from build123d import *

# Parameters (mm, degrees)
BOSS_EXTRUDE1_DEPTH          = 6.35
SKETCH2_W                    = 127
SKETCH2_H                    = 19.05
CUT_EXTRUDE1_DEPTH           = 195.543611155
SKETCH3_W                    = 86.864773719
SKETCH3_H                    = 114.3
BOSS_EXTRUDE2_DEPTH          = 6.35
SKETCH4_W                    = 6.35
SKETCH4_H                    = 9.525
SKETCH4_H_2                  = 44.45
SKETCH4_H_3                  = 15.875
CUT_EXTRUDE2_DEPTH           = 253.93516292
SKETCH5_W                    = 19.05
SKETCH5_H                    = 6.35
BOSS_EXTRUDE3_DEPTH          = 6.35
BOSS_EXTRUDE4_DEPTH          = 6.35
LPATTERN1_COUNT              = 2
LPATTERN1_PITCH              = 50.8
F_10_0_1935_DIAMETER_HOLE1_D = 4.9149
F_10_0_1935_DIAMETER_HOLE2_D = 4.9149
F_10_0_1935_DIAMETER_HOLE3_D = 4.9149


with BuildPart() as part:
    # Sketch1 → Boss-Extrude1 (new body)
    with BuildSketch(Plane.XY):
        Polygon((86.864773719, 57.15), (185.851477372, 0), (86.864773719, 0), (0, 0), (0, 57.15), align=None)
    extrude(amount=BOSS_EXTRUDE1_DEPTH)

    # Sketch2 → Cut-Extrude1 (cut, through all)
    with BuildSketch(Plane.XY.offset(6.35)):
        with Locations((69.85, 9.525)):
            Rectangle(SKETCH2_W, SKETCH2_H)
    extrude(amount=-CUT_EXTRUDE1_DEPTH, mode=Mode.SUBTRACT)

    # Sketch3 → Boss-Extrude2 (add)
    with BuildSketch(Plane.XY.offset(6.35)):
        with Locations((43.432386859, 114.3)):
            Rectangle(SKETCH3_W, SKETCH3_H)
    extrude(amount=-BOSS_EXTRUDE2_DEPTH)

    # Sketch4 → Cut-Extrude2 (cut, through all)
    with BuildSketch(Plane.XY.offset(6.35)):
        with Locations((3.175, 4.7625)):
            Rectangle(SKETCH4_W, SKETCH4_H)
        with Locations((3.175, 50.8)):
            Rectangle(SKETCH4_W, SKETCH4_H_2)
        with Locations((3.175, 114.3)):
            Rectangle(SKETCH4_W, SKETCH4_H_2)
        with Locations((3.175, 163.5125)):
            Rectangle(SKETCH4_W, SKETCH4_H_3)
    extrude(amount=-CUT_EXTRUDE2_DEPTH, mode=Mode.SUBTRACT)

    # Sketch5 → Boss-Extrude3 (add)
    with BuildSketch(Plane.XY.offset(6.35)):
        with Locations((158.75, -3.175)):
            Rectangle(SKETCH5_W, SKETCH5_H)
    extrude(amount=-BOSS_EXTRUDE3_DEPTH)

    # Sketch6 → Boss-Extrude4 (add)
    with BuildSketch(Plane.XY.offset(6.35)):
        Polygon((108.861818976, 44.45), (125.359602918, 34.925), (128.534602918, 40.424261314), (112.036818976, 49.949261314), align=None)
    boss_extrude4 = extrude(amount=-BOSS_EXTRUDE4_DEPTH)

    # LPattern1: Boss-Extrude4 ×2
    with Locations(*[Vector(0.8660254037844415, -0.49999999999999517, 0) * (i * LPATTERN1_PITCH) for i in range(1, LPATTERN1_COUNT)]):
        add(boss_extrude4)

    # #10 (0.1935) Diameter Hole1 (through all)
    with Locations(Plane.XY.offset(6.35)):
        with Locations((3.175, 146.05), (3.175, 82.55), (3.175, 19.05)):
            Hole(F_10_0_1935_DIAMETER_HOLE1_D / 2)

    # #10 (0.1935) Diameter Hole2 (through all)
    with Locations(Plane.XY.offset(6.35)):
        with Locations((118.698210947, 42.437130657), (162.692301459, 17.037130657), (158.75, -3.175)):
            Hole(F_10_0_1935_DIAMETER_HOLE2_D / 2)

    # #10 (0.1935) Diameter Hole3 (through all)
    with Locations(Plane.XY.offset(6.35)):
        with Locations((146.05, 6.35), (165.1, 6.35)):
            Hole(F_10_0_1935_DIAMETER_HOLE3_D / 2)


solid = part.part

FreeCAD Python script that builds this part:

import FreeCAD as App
import Part
import Sketcher
Q = App.Units.Quantity


def add_polygon(sketch, points):
    """Adds a closed chain of lines whose ends are joined by coincident constraints."""
    first, n = sketch.GeometryCount, len(points)
    for a, b in zip(points, points[1:] + points[:1]):
        sketch.addGeometry(Part.LineSegment(App.Vector(*a, 0), App.Vector(*b, 0)), False)
    for i in range(n):
        sketch.addConstraint(Sketcher.Constraint("Coincident", first + i, 2, first + (i + 1) % n, 1))

doc = App.newDocument("Part")
body = doc.addObject("PartDesign::Body", "Body")

# Sketch on XY plane
sketch1 = doc.addObject("Sketcher::SketchObject", "Sketch")
body.addObject(sketch1)
sketch1.AttachmentSupport = (doc.XY_Plane, [""])
sketch1.MapMode = "FlatFace"
add_polygon(sketch1, [(186, 0), (87, 57), (0, 57), (0, 0)])  # lines 0-3
sketch1.addConstraint(Sketcher.Constraint("Horizontal", 1))
sketch1.addConstraint(Sketcher.Constraint("Vertical", 2))
sketch1.addConstraint(Sketcher.Constraint("Horizontal", 3))
sketch1.addConstraint(Sketcher.Constraint("Coincident", 2, 2, -1, 1))
sketch1.addConstraint(Sketcher.Constraint("Angle", 0, Q("150 deg")))
sketch1.addConstraint(Sketcher.Constraint("Distance", 0, Q("4.5 in")))
sketch1.addConstraint(Sketcher.Constraint("DistanceX", 1, 2, 1, 1, Q("86.864774 mm")))
pad1 = doc.addObject("PartDesign::Pad", "Pad")
body.addObject(pad1)
pad1.Profile = sketch1
pad1.Length = Q("0.25 in")

# Sketch on XY plane
sketch2 = doc.addObject("Sketcher::SketchObject", "Sketch001")
body.addObject(sketch2)
sketch2.AttachmentSupport = (doc.XY_Plane, [""])
sketch2.MapMode = "FlatFace"
sketch2.AttachmentOffset = App.Placement(App.Vector(0, 0, 0.25 * 25.4), App.Rotation())
add_polygon(sketch2, [(6, 19), (6, 0), (133, 0), (133, 19)])  # lines 0-3
sketch2.addConstraint(Sketcher.Constraint("Vertical", 0))
sketch2.addConstraint(Sketcher.Constraint("Horizontal", 1))
sketch2.addConstraint(Sketcher.Constraint("Vertical", 2))
sketch2.addConstraint(Sketcher.Constraint("Horizontal", 3))
sketch2.addConstraint(Sketcher.Constraint("PointOnObject", 0, 2, -1))
sketch2.addConstraint(Sketcher.Constraint("DistanceX", 1, 1, 1, 2, Q("5 in")))
sketch2.addConstraint(Sketcher.Constraint("DistanceY", 0, 2, 0, 1, Q("0.75 in")))
sketch2.addConstraint(Sketcher.Constraint("DistanceX", -1, 1, 0, 2, Q("0.25 in")))
pocket1 = doc.addObject("PartDesign::Pocket", "Pocket")
body.addObject(pocket1)
pocket1.Profile = sketch2
pocket1.Type = "ThroughAll"

# Sketch on XY plane
sketch3 = doc.addObject("Sketcher::SketchObject", "Sketch002")
body.addObject(sketch3)
sketch3.AttachmentSupport = (doc.XY_Plane, [""])
sketch3.MapMode = "FlatFace"
sketch3.AttachmentOffset = App.Placement(App.Vector(0, 0, 0.25 * 25.4), App.Rotation())
add_polygon(sketch3, [(0, 171), (0, 57), (87, 57), (87, 171)])  # lines 0-3
sketch3.addConstraint(Sketcher.Constraint("Vertical", 0))
sketch3.addConstraint(Sketcher.Constraint("Horizontal", 1))
sketch3.addConstraint(Sketcher.Constraint("Vertical", 2))
sketch3.addConstraint(Sketcher.Constraint("Horizontal", 3))
sketch3.addConstraint(Sketcher.Constraint("PointOnObject", 0, 2, -2))
sketch3.addConstraint(Sketcher.Constraint("DistanceY", 0, 2, 0, 1, Q("4.5 in")))
sketch3.addConstraint(Sketcher.Constraint("DistanceY", -1, 1, 0, 2, Q("2.25 in")))
sketch3.addConstraint(Sketcher.Constraint("DistanceX", 1, 1, 1, 2, Q("86.864774 mm")))
pad2 = doc.addObject("PartDesign::Pad", "Pad001")
body.addObject(pad2)
pad2.Profile = sketch3
pad2.Length = Q("0.25 in")
pad2.Reversed = True

# Sketch on XY plane
sketch4 = doc.addObject("Sketcher::SketchObject", "Sketch003")
body.addObject(sketch4)
sketch4.AttachmentSupport = (doc.XY_Plane, [""])
sketch4.MapMode = "FlatFace"
sketch4.AttachmentOffset = App.Placement(App.Vector(0, 0, 0.25 * 25.4), App.Rotation())
add_polygon(sketch4, [(0, 10), (0, 0), (6, 0), (6, 10)])  # lines 0-3
add_polygon(sketch4, [(0, 73), (0, 29), (6, 29), (6, 73)])  # lines 4-7
add_polygon(sketch4, [(0, 137), (0, 92), (6, 92), (6, 137)])  # lines 8-11
add_polygon(sketch4, [(0, 171), (0, 156), (6, 156), (6, 171)])  # lines 12-15
sketch4.addConstraint(Sketcher.Constraint("Vertical", 0))
sketch4.addConstraint(Sketcher.Constraint("Horizontal", 1))
sketch4.addConstraint(Sketcher.Constraint("Vertical", 2))
sketch4.addConstraint(Sketcher.Constraint("Horizontal", 3))
sketch4.addConstraint(Sketcher.Constraint("Vertical", 4))
sketch4.addConstraint(Sketcher.Constraint("Horizontal", 5))
sketch4.addConstraint(Sketcher.Constraint("Vertical", 6))
sketch4.addConstraint(Sketcher.Constraint("Horizontal", 7))
sketch4.addConstraint(Sketcher.Constraint("Vertical", 8))
sketch4.addConstraint(Sketcher.Constraint("Horizontal", 9))
sketch4.addConstraint(Sketcher.Constraint("Vertical", 10))
sketch4.addConstraint(Sketcher.Constraint("Horizontal", 11))
sketch4.addConstraint(Sketcher.Constraint("Vertical", 12))
sketch4.addConstraint(Sketcher.Constraint("Horizontal", 13))
sketch4.addConstraint(Sketcher.Constraint("Vertical", 14))
sketch4.addConstraint(Sketcher.Constraint("Horizontal", 15))
sketch4.addConstraint(Sketcher.Constraint("Coincident", 0, 2, -1, 1))
sketch4.addConstraint(Sketcher.Constraint("PointOnObject", 4, 2, -2))
sketch4.addConstraint(Sketcher.Constraint("PointOnObject", 8, 2, -2))
sketch4.addConstraint(Sketcher.Constraint("PointOnObject", 12, 2, -2))
sketch4.addConstraint(Sketcher.Constraint("Vertical", 2, 2, 5, 2))
sketch4.addConstraint(Sketcher.Constraint("Vertical", 6, 2, 9, 2))
sketch4.addConstraint(Sketcher.Constraint("Vertical", 10, 2, 13, 2))
sketch4.addConstraint(Sketcher.Constraint("Equal", 6, 8))
sketch4.addConstraint(Sketcher.Constraint("DistanceX", 1, 1, 1, 2, Q("0.25 in")))
sketch4.addConstraint(Sketcher.Constraint("DistanceY", 4, 2, 4, 1, Q("1.75 in")))
sketch4.addConstraint(Sketcher.Constraint("DistanceY", 2, 2, 6, 2, Q("2.5 in")))
sketch4.addConstraint(Sketcher.Constraint("DistanceY", 4, 2, 8, 2, Q("2.5 in")))
sketch4.addConstraint(Sketcher.Constraint("DistanceY", 8, 2, 12, 2, Q("2.5 in")))
sketch4.addConstraint(Sketcher.Constraint("DistanceY", 0, 2, 0, 1, Q("0.375 in")))
sketch4.addConstraint(Sketcher.Constraint("DistanceY", 12, 2, 12, 1, Q("0.625 in")))
pocket2 = doc.addObject("PartDesign::Pocket", "Pocket001")
body.addObject(pocket2)
pocket2.Profile = sketch4
pocket2.Type = "ThroughAll"

# Sketch on XY plane
sketch5 = doc.addObject("Sketcher::SketchObject", "Sketch004")
body.addObject(sketch5)
sketch5.AttachmentSupport = (doc.XY_Plane, [""])
sketch5.MapMode = "FlatFace"
sketch5.AttachmentOffset = App.Placement(App.Vector(0, 0, 0.25 * 25.4), App.Rotation())
add_polygon(sketch5, [(149, 0), (149, -6), (168, -6), (168, 0)])  # lines 0-3
sketch5.addConstraint(Sketcher.Constraint("Vertical", 0))
sketch5.addConstraint(Sketcher.Constraint("Horizontal", 1))
sketch5.addConstraint(Sketcher.Constraint("Vertical", 2))
sketch5.addConstraint(Sketcher.Constraint("Horizontal", 3))
sketch5.addConstraint(Sketcher.Constraint("PointOnObject", 2, 2, -1))
sketch5.addConstraint(Sketcher.Constraint("DistanceX", 1, 1, 1, 2, Q("0.75 in")))
sketch5.addConstraint(Sketcher.Constraint("DistanceY", 0, 2, 0, 1, Q("0.25 in")))
sketch5.addConstraint(Sketcher.Constraint("DistanceX", -1, 1, 0, 2, Q("5.875 in")))
pad3 = doc.addObject("PartDesign::Pad", "Pad002")
body.addObject(pad3)
pad3.Profile = sketch5
pad3.Length = Q("0.25 in")
pad3.Reversed = True

# Sketch on XY plane
sketch6 = doc.addObject("Sketcher::SketchObject", "Sketch005")
body.addObject(sketch6)
sketch6.AttachmentSupport = (doc.XY_Plane, [""])
sketch6.MapMode = "FlatFace"
sketch6.AttachmentOffset = App.Placement(App.Vector(0, 0, 0.25 * 25.4), App.Rotation())
add_polygon(sketch6, [(109, 44), (125, 35), (129, 40), (112, 50)])  # lines 0-3
sketch6.addConstraint(Sketcher.Constraint("Perpendicular", 0, 1))
sketch6.addConstraint(Sketcher.Constraint("Perpendicular", 1, 2))
sketch6.addConstraint(Sketcher.Constraint("Perpendicular", 2, 3))
sketch6.addConstraint(Sketcher.Constraint("Angle", 0, Q("-30 deg")))
sketch6.addConstraint(Sketcher.Constraint("Distance", 0, Q("0.75 in")))
sketch6.addConstraint(Sketcher.Constraint("Distance", 1, Q("0.25 in")))
sketch6.addConstraint(Sketcher.Constraint("DistanceY", -1, 1, 3, 2, Q("1.75 in")))
sketch6.addConstraint(Sketcher.Constraint("DistanceX", -1, 1, 2, 2, Q("112.036819 mm")))
pad4 = doc.addObject("PartDesign::Pad", "Pad003")
body.addObject(pad4)
pad4.Profile = sketch6
pad4.Length = Q("0.25 in")
pad4.Reversed = True
doc.recompute()

datumline = doc.addObject("PartDesign::Line", "DatumLine")
body.addObject(datumline)
datumline.Placement = App.Placement(App.Vector(0, 0, 0), App.Rotation(App.Vector(0, 0, 1), App.Vector(0.866025404, -0.5, 0)))
linearpattern = doc.addObject("PartDesign::LinearPattern", "LinearPattern")
body.addObject(linearpattern)
linearpattern.Originals = [pad4]
linearpattern.Direction = (datumline, [""])
linearpattern.Mode = "offset"
linearpattern.Offset = Q("2 in")
linearpattern.Occurrences = 2
body.Tip = linearpattern

# Sketch on XY plane
sketch7 = doc.addObject("Sketcher::SketchObject", "Sketch006")
body.addObject(sketch7)
sketch7.AttachmentSupport = (doc.XY_Plane, [""])
sketch7.MapMode = "FlatFace"
sketch7.AttachmentOffset = App.Placement(App.Vector(0, 0, 0.25 * 25.4), App.Rotation())
sketch7.addGeometry(Part.Circle(App.Vector(3.2, 146.1, 0), App.Vector(0, 0, 1), 2.5), False)
sketch7.addGeometry(Part.Circle(App.Vector(3.2, 82.5, 0), App.Vector(0, 0, 1), 2.5), False)
sketch7.addGeometry(Part.Circle(App.Vector(3.2, 19.1, 0), App.Vector(0, 0, 1), 2.5), False)
sketch7.addConstraint(Sketcher.Constraint("Equal", 0, 1))
sketch7.addConstraint(Sketcher.Constraint("Equal", 1, 2))
sketch7.addConstraint(Sketcher.Constraint("Vertical", 0, 3, 1, 3))
sketch7.addConstraint(Sketcher.Constraint("Vertical", 1, 3, 2, 3))
sketch7.addConstraint(Sketcher.Constraint("DistanceY", 2, 3, 0, 3, Q("5 in")))
sketch7.addConstraint(Sketcher.Constraint("Diameter", 0, Q("0.1935 in")))
sketch7.addConstraint(Sketcher.Constraint("DistanceY", 1, 3, 0, 3, Q("2.5 in")))
sketch7.addConstraint(Sketcher.Constraint("DistanceY", -1, 1, 0, 3, Q("5.75 in")))
sketch7.addConstraint(Sketcher.Constraint("DistanceX", -1, 1, 0, 3, Q("0.125 in")))
doc.recompute()
hole = doc.addObject("PartDesign::Hole", "Hole")
body.addObject(hole)
hole.Profile = sketch7
hole.ThreadType = "None"
hole.Diameter = Q("0.1935 in")
hole.DepthType = "ThroughAll"

# Sketch on XY plane
sketch8 = doc.addObject("Sketcher::SketchObject", "Sketch007")
body.addObject(sketch8)
sketch8.AttachmentSupport = (doc.XY_Plane, [""])
sketch8.MapMode = "FlatFace"
sketch8.AttachmentOffset = App.Placement(App.Vector(0, 0, 0.25 * 25.4), App.Rotation())
sketch8.addGeometry(Part.Circle(App.Vector(118.7, 42.4, 0), App.Vector(0, 0, 1), 2.5), False)
sketch8.addGeometry(Part.Circle(App.Vector(162.7, 17, 0), App.Vector(0, 0, 1), 2.5), False)
sketch8.addGeometry(Part.Circle(App.Vector(158.8, -3.2, 0), App.Vector(0, 0, 1), 2.5), False)
sketch8.addConstraint(Sketcher.Constraint("Equal", 0, 1))
sketch8.addConstraint(Sketcher.Constraint("Equal", 1, 2))
sketch8.addConstraint(Sketcher.Constraint("DistanceY", 1, 3, 0, 3, Q("1 in")))
sketch8.addConstraint(Sketcher.Constraint("Diameter", 0, Q("0.1935 in")))
sketch8.addConstraint(Sketcher.Constraint("DistanceX", -1, 1, 2, 3, Q("6.25 in")))
sketch8.addConstraint(Sketcher.Constraint("DistanceY", 2, 3, -1, 1, Q("0.125 in")))
sketch8.addConstraint(Sketcher.Constraint("DistanceX", -1, 1, 1, 3, Q("162.692301 mm")))
sketch8.addConstraint(Sketcher.Constraint("DistanceX", -1, 1, 0, 3, Q("118.698211 mm")))
sketch8.addConstraint(Sketcher.Constraint("DistanceY", -1, 1, 0, 3, Q("42.437131 mm")))
doc.recompute()
hole2 = doc.addObject("PartDesign::Hole", "Hole001")
body.addObject(hole2)
hole2.Profile = sketch8
hole2.ThreadType = "None"
hole2.Diameter = Q("0.1935 in")
hole2.DepthType = "ThroughAll"

# Sketch on XY plane
sketch9 = doc.addObject("Sketcher::SketchObject", "Sketch008")
body.addObject(sketch9)
sketch9.AttachmentSupport = (doc.XY_Plane, [""])
sketch9.MapMode = "FlatFace"
sketch9.AttachmentOffset = App.Placement(App.Vector(0, 0, 0.25 * 25.4), App.Rotation())
sketch9.addGeometry(Part.Circle(App.Vector(146.1, 6.3, 0), App.Vector(0, 0, 1), 2.5), False)
sketch9.addGeometry(Part.Circle(App.Vector(165.1, 6.3, 0), App.Vector(0, 0, 1), 2.5), False)
sketch9.addConstraint(Sketcher.Constraint("Equal", 0, 1))
sketch9.addConstraint(Sketcher.Constraint("Horizontal", 0, 3, 1, 3))
sketch9.addConstraint(Sketcher.Constraint("Diameter", 0, Q("0.1935 in")))
sketch9.addConstraint(Sketcher.Constraint("DistanceX", -1, 1, 1, 3, Q("6.5 in")))
sketch9.addConstraint(Sketcher.Constraint("DistanceX", -1, 1, 0, 3, Q("5.75 in")))
sketch9.addConstraint(Sketcher.Constraint("DistanceY", -1, 1, 0, 3, Q("0.25 in")))
doc.recompute()
hole3 = doc.addObject("PartDesign::Hole", "Hole002")
body.addObject(hole3)
hole3.Profile = sketch9
hole3.ThreadType = "None"
hole3.Diameter = Q("0.1935 in")
hole3.DepthType = "ThroughAll"

doc.recompute()
